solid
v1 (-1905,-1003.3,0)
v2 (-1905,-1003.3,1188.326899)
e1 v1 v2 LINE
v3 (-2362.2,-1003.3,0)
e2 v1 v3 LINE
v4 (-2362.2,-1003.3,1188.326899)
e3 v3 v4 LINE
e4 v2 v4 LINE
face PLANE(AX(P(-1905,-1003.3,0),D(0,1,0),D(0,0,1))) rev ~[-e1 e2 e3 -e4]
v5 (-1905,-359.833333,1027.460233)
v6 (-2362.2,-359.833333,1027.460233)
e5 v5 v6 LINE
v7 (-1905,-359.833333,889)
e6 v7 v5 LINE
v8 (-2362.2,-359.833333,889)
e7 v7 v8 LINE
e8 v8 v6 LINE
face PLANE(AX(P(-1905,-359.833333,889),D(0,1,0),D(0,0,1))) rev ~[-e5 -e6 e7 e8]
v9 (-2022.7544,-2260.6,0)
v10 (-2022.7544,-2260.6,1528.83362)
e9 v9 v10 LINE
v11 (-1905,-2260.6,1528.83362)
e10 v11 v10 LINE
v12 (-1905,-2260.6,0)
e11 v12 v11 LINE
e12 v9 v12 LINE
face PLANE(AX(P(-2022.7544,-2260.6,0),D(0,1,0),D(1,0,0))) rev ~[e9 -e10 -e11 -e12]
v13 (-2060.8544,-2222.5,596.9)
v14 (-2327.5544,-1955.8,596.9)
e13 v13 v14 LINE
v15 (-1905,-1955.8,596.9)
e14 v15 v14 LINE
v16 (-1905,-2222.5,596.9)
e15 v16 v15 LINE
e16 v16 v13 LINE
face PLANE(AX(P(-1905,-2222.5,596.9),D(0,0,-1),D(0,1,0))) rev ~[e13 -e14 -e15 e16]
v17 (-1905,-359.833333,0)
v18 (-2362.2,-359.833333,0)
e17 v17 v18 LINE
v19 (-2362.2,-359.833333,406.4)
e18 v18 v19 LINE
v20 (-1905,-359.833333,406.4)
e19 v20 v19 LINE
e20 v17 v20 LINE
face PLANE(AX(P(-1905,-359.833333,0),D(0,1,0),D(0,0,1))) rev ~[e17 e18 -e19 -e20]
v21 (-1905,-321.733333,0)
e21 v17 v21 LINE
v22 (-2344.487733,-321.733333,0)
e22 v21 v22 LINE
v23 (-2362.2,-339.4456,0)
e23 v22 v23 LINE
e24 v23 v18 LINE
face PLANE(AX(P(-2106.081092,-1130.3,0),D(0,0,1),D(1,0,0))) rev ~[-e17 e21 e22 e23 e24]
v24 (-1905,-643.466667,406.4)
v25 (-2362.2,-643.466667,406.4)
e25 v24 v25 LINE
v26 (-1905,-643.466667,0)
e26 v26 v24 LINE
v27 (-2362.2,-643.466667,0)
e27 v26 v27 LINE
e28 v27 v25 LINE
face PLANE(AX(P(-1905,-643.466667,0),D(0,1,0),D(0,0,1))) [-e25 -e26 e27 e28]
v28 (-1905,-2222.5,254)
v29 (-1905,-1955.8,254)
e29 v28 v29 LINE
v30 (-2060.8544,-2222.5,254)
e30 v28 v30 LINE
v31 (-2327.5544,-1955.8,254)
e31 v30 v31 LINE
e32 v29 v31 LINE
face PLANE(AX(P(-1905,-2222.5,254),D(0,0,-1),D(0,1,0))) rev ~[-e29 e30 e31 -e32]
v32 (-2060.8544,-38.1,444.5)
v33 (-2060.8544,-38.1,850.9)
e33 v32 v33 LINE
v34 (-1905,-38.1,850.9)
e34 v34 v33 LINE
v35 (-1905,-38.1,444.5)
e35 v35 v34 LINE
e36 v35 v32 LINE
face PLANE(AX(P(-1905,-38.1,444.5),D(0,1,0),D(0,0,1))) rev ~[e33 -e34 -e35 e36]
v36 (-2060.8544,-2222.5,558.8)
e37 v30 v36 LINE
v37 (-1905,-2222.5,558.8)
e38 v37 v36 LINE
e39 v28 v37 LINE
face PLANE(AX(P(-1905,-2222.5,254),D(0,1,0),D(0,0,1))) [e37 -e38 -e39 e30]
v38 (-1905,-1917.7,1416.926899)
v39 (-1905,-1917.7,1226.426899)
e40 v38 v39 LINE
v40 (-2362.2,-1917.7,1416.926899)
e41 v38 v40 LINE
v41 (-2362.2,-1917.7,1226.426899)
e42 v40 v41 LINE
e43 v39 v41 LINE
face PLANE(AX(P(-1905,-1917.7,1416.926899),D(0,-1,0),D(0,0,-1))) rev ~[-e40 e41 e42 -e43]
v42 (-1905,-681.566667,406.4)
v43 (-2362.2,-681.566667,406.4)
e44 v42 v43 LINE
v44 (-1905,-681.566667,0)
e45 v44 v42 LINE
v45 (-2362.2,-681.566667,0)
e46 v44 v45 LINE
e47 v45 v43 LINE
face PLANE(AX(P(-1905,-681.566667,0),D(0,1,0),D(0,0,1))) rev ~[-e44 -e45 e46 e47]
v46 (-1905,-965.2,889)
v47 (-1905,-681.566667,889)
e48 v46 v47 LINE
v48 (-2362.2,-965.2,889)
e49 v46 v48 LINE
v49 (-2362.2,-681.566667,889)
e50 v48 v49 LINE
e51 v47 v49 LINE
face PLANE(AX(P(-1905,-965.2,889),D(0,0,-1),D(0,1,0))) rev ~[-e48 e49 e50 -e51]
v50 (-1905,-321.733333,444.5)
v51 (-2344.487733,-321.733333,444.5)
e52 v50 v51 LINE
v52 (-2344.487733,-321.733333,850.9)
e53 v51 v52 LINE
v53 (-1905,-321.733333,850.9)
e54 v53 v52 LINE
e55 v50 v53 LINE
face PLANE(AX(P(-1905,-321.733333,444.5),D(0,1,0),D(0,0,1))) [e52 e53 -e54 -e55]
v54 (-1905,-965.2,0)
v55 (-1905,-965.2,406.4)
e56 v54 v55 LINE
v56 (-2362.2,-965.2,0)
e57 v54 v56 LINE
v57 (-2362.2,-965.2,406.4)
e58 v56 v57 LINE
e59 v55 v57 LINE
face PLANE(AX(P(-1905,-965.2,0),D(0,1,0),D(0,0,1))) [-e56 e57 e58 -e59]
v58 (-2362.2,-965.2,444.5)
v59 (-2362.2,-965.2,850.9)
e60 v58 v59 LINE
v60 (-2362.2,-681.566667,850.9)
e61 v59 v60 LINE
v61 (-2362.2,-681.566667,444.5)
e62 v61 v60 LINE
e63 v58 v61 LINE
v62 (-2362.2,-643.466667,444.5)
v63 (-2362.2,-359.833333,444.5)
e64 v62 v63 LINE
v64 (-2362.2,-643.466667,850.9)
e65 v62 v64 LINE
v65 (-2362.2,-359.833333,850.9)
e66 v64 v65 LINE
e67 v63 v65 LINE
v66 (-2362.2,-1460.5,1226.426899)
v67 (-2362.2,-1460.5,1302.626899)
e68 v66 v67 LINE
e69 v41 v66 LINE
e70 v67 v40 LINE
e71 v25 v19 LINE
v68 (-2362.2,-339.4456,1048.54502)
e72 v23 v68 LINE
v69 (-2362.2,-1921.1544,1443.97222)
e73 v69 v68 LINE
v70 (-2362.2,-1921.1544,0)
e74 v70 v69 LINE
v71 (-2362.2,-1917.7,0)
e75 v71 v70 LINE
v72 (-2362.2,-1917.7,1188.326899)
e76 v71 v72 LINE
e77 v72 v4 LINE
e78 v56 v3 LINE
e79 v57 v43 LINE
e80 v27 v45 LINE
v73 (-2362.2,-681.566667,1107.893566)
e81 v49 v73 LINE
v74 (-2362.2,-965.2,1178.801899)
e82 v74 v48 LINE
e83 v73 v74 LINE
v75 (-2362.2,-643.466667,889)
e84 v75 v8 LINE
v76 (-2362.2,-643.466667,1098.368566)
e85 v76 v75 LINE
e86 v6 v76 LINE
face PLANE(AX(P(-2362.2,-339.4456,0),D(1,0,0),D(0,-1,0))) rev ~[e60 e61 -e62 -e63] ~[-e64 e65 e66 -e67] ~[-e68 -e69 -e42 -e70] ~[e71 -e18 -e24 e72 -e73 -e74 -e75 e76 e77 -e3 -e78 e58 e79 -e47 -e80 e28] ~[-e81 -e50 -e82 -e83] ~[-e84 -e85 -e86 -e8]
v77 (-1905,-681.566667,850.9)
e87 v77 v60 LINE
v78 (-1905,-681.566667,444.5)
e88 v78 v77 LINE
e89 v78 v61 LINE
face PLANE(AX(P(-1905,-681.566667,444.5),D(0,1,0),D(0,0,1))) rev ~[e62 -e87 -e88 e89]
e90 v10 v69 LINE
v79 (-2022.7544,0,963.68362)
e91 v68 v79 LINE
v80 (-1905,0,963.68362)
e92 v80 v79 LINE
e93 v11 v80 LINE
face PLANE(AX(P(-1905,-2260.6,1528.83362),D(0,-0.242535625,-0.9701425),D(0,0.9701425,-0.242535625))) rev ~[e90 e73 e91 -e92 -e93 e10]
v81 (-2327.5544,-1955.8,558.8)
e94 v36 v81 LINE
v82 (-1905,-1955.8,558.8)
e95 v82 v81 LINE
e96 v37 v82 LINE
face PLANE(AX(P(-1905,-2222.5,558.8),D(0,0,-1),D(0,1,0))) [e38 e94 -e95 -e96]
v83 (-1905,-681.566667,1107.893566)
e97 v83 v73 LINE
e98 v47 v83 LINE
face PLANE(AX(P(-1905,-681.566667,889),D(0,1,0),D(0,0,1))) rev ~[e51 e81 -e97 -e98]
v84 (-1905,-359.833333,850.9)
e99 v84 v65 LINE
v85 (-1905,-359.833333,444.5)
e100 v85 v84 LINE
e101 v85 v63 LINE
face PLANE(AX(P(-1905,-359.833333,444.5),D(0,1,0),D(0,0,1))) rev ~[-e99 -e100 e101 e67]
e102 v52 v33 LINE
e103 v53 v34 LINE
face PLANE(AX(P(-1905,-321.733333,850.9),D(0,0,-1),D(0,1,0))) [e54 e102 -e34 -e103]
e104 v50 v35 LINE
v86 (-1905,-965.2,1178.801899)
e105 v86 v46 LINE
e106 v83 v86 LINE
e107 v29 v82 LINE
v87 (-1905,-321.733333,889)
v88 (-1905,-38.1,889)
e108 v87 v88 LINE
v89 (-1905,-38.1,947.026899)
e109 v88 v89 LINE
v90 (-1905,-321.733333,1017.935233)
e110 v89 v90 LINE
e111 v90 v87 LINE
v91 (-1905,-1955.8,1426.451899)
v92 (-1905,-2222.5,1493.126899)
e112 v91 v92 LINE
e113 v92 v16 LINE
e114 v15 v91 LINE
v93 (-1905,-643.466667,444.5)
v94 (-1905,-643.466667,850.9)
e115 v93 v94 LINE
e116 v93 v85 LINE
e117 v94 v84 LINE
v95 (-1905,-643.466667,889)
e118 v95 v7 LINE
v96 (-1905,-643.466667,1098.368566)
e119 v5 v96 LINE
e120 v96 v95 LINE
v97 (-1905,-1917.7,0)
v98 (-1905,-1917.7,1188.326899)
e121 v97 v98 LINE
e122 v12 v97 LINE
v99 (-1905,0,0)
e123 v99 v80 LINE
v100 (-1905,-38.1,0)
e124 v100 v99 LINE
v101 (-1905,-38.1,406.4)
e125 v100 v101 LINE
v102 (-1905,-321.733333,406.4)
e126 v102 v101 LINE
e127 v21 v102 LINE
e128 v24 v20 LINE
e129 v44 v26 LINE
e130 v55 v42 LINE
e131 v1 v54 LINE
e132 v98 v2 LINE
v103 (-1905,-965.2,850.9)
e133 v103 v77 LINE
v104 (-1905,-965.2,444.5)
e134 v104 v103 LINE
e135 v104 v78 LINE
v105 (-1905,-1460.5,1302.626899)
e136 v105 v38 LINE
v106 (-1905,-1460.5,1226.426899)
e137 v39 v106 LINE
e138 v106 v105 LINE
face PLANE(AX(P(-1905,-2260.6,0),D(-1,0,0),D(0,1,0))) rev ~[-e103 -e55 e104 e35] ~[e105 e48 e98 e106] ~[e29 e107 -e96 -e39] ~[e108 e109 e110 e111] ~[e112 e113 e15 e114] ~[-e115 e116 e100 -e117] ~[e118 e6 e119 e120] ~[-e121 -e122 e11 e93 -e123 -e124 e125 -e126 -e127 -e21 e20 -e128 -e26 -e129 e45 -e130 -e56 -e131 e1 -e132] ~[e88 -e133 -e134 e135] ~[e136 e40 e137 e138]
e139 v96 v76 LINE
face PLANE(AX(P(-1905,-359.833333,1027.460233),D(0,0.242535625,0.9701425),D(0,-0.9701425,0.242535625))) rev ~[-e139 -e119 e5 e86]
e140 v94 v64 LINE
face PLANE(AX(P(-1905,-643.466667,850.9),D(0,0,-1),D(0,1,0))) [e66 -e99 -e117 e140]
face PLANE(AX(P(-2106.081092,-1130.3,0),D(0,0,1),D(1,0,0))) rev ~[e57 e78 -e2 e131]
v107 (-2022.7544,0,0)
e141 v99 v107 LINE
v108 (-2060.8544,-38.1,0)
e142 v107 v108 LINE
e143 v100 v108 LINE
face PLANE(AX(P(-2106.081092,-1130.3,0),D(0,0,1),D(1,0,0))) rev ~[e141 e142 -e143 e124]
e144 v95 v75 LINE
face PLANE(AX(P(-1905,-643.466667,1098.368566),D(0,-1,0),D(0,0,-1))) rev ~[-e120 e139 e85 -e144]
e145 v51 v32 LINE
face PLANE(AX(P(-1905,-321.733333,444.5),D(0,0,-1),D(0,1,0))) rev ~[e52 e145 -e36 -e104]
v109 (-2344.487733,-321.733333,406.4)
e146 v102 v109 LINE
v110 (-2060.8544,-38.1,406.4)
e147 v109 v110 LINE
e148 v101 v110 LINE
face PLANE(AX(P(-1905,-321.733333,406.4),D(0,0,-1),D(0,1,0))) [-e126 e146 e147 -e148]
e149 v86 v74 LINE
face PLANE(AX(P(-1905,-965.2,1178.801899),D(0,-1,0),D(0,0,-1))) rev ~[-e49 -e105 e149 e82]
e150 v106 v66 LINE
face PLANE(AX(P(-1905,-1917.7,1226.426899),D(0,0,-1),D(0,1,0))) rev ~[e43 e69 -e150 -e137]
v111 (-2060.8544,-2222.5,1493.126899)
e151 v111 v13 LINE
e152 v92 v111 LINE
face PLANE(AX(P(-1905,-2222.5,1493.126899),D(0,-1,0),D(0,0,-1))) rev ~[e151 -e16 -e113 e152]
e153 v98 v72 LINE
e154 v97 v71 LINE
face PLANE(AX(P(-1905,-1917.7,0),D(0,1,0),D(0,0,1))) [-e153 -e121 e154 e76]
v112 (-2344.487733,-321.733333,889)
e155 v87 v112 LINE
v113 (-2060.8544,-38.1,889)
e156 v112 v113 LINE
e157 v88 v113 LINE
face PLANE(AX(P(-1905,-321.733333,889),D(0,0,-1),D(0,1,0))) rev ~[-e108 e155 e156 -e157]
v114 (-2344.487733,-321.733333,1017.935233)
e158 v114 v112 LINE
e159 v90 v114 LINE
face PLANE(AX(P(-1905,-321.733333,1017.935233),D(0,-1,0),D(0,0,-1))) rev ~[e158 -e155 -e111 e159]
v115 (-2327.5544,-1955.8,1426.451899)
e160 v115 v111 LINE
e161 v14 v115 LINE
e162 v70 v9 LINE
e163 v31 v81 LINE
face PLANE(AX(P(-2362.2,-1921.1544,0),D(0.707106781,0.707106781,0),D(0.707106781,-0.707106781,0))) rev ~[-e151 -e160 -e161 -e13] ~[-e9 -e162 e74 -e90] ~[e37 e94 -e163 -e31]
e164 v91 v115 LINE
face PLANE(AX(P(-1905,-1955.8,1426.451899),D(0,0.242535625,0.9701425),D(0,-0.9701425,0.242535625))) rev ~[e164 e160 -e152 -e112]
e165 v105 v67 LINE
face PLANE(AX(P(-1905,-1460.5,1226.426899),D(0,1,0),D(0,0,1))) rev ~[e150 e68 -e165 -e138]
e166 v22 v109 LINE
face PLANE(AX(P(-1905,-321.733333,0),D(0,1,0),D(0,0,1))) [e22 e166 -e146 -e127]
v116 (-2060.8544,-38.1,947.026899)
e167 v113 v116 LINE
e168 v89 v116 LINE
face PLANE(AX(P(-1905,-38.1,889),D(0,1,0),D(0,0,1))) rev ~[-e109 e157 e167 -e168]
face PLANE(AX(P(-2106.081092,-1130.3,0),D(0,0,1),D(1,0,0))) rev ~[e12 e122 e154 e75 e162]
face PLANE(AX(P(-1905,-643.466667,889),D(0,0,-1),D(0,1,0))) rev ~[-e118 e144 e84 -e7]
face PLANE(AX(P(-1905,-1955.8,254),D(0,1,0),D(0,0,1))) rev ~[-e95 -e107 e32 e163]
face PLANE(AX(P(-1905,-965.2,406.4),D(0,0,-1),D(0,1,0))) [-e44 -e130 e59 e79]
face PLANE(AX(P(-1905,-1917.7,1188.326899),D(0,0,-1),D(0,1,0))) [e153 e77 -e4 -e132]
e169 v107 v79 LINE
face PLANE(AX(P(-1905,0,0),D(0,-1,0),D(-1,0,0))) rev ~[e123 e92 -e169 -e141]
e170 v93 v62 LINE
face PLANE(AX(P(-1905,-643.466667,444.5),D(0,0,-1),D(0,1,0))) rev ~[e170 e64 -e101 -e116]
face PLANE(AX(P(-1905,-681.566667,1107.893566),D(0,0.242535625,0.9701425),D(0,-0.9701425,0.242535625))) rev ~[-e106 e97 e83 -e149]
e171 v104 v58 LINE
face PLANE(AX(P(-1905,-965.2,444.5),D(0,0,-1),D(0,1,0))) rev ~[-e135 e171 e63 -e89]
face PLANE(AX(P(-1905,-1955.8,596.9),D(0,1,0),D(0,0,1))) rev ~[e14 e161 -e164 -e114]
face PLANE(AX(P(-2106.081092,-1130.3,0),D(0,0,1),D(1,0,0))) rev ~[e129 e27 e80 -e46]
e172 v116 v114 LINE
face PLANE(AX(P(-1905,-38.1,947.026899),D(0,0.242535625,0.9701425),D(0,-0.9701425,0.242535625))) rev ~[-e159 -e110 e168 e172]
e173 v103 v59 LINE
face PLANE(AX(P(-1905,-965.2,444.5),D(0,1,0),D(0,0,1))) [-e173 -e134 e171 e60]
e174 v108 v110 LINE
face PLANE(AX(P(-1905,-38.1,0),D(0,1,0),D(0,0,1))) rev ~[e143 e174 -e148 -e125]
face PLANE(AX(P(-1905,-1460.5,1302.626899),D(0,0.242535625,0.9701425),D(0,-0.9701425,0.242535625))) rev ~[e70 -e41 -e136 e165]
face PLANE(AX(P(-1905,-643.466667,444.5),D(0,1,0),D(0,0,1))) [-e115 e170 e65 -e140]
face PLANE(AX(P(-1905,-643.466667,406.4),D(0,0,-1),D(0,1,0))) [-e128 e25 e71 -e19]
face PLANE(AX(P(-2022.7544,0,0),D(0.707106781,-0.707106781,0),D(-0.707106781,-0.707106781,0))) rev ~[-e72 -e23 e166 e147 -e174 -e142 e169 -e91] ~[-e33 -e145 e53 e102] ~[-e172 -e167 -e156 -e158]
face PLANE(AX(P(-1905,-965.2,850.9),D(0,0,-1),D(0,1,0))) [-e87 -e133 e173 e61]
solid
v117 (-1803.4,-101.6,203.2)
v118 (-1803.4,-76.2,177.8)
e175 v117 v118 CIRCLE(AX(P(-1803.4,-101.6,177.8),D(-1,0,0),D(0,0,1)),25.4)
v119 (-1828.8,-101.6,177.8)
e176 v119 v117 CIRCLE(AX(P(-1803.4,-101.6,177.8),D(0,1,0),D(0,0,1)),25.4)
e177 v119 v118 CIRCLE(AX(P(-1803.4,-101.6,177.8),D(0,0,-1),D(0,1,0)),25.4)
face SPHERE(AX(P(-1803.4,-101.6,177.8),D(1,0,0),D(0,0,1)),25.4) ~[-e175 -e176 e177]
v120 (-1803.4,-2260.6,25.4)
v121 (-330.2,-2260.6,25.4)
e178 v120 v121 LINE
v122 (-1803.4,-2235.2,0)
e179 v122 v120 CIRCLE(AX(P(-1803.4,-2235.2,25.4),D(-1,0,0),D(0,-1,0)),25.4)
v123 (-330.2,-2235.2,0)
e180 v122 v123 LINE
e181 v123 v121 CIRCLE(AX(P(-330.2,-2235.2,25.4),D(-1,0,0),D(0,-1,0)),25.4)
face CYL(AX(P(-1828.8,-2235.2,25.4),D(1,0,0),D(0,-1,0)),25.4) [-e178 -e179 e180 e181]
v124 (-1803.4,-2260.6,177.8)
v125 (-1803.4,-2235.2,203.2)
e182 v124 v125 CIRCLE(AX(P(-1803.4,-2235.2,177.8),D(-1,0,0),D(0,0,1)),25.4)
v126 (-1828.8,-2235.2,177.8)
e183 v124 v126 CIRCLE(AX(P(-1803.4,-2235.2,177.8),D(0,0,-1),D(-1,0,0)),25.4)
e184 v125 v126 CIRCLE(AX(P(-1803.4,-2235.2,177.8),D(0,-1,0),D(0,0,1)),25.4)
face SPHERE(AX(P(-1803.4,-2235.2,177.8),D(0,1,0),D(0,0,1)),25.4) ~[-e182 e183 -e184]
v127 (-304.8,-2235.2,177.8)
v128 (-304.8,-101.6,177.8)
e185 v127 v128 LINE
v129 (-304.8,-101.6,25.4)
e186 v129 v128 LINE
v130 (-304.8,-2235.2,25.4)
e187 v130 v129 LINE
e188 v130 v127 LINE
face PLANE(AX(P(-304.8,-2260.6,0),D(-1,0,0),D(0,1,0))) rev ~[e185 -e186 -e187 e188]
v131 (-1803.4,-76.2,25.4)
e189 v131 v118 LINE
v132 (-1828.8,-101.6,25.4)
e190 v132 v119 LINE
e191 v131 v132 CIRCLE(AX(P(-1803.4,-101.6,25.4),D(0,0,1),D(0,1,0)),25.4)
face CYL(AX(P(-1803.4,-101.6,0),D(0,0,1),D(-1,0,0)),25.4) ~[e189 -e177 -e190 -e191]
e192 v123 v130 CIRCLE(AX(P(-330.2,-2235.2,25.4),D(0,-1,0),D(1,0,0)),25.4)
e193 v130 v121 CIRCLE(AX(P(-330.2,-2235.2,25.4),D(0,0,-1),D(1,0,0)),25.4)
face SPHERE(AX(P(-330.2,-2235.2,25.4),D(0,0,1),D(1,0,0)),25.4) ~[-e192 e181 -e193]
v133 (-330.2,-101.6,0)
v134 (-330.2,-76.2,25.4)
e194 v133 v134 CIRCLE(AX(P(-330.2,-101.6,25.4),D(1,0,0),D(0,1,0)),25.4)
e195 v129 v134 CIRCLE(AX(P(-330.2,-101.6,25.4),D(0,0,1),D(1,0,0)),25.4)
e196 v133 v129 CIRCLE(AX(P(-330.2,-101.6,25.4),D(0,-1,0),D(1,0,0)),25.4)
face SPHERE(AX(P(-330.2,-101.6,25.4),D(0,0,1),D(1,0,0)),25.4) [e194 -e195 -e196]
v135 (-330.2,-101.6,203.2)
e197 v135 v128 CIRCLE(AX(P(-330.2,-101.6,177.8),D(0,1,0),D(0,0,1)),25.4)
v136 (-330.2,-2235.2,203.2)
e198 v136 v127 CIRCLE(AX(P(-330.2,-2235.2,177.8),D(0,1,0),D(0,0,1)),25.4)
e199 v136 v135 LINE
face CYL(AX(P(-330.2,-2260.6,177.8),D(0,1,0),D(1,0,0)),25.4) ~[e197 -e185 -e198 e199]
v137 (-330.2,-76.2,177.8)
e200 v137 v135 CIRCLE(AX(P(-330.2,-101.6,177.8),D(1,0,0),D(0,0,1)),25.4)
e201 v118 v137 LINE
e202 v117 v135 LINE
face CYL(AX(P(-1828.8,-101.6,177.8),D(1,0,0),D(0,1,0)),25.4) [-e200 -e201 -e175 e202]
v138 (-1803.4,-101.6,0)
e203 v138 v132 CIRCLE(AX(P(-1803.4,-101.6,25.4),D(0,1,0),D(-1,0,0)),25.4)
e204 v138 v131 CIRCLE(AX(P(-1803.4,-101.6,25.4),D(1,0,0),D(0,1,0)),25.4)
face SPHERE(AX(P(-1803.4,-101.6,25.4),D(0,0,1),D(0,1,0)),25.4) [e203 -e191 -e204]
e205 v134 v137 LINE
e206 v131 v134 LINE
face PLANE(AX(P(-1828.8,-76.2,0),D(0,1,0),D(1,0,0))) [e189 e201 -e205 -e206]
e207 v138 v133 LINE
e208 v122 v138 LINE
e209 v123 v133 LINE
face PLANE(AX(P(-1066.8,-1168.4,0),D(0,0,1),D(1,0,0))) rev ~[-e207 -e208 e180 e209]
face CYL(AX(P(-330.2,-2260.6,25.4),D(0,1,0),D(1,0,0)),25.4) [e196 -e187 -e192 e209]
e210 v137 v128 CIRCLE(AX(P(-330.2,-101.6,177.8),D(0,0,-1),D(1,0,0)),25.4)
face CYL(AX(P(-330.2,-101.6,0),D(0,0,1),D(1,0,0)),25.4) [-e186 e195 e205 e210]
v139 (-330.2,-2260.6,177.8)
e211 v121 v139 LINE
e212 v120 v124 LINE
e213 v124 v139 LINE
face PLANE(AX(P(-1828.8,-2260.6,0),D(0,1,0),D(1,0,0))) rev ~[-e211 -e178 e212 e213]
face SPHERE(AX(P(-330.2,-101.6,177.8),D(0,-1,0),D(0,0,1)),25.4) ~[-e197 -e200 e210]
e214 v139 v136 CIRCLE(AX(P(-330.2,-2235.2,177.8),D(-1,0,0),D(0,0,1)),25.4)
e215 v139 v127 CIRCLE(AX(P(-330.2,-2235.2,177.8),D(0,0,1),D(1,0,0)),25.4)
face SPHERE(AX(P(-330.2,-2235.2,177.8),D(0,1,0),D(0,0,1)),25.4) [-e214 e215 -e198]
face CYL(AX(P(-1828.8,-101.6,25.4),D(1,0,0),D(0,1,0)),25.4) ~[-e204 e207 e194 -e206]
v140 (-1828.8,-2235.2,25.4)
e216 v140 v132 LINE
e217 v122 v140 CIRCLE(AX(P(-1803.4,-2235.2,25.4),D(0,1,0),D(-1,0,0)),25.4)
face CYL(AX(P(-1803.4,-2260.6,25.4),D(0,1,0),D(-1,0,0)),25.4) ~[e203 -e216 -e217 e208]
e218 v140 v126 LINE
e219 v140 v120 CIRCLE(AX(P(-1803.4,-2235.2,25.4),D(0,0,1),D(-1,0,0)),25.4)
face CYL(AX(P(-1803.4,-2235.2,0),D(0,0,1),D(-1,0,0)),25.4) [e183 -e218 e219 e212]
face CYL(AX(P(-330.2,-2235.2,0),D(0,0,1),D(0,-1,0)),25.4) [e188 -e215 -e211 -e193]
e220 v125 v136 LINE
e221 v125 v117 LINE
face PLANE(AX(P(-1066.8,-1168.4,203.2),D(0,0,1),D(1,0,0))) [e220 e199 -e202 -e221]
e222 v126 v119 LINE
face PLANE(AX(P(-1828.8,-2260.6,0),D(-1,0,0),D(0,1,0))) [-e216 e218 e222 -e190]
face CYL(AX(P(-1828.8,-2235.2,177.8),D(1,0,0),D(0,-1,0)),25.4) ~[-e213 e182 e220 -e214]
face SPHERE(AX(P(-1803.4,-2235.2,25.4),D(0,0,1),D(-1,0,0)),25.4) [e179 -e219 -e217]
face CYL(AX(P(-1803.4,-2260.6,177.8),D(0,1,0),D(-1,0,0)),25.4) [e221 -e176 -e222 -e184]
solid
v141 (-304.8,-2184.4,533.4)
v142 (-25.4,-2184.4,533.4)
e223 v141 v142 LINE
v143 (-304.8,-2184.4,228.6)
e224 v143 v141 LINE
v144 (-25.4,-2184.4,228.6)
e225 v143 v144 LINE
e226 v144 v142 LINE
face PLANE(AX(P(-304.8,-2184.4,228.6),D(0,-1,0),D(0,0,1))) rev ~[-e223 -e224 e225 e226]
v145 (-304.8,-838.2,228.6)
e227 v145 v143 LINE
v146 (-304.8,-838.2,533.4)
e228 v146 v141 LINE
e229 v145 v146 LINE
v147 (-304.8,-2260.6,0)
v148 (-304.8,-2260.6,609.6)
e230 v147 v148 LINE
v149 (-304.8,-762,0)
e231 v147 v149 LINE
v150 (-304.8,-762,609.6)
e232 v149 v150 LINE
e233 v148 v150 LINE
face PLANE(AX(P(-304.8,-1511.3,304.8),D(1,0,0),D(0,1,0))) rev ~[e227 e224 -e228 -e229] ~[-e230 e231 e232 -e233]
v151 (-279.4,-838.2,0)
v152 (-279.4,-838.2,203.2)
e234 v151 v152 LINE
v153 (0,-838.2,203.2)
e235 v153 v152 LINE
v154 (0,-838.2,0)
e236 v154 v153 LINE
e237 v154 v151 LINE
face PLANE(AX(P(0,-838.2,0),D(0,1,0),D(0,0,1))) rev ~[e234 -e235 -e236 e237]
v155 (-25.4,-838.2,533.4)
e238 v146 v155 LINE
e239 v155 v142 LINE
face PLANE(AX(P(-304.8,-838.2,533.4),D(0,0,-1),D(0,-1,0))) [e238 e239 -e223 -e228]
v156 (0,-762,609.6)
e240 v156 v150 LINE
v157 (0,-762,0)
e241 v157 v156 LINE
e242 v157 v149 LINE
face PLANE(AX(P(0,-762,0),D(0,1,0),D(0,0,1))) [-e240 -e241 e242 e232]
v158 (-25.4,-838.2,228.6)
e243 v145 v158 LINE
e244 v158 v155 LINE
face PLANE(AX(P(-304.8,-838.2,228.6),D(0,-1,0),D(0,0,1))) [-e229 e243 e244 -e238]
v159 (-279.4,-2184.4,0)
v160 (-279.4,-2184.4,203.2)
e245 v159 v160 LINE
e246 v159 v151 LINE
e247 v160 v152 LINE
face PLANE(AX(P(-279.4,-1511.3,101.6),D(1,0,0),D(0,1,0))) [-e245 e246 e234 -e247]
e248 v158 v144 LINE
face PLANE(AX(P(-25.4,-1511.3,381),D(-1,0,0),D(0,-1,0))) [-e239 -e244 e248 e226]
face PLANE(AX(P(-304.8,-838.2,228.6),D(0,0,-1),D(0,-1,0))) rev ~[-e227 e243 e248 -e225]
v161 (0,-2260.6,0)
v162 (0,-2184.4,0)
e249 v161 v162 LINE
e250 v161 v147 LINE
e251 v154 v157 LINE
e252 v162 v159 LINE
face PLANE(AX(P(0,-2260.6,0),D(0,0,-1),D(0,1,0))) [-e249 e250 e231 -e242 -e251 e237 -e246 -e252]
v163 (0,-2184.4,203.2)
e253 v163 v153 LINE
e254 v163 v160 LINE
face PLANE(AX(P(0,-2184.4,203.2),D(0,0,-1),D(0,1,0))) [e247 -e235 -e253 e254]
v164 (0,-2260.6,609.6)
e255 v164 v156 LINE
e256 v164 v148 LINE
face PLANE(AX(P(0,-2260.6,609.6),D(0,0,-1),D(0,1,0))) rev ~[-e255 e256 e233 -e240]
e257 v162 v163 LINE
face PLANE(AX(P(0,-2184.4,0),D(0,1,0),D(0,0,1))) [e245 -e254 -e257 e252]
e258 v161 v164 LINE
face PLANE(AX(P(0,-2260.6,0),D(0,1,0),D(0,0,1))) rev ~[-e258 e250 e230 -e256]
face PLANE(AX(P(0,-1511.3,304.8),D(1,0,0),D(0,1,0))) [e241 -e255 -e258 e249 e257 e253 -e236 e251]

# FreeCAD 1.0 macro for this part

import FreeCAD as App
import Part
import Sketcher
Q = App.Units.Quantity

doc = App.newDocument("Part")
body = doc.addObject("PartDesign::Body", "Body")

# Sketch on YZ plane
sketch1 = doc.addObject("Sketcher::SketchObject", "Sketch")
body.addObject(sketch1)
sketch1.AttachmentSupport = (doc.YZ_Plane, [""])
sketch1.MapMode = "FlatFace"
sketch1.addGeometry(Part.LineSegment(App.Vector(-2260.6, 609.6, 0), App.Vector(-2260.6, 0, 0)), False)
sketch1.addGeometry(Part.LineSegment(App.Vector(-2260.6, 0, 0), App.Vector(-762, 0, 0)), False)
sketch1.addGeometry(Part.LineSegment(App.Vector(-762, 0, 0), App.Vector(-762, 609.6, 0)), False)
sketch1.addGeometry(Part.LineSegment(App.Vector(-762, 609.6, 0), App.Vector(-2260.6, 609.6, 0)), False)
sketch1.addConstraint(Sketcher.Constraint("Coincident", 0, 2, 1, 1))
sketch1.addConstraint(Sketcher.Constraint("Coincident", 1, 2, 2, 1))
sketch1.addConstraint(Sketcher.Constraint("Coincident", 2, 2, 3, 1))
sketch1.addConstraint(Sketcher.Constraint("Coincident", 3, 2, 0, 1))
sketch1.addConstraint(Sketcher.Constraint("Vertical", 0))
sketch1.addConstraint(Sketcher.Constraint("Horizontal", 1))
sketch1.addConstraint(Sketcher.Constraint("Vertical", 2))
sketch1.addConstraint(Sketcher.Constraint("Horizontal", 3))
sketch1.addConstraint(Sketcher.Constraint("PointOnObject", 0, 2, -1))
sketch1.addConstraint(Sketcher.Constraint("DistanceX", 1, 1, 1, 2, Q("59 in")))
sketch1.addConstraint(Sketcher.Constraint("DistanceY", 0, 2, 0, 1, Q("24 in")))
sketch1.addConstraint(Sketcher.Constraint("DistanceX", 0, 2, -1, 1, Q("89 in")))
pad1 = doc.addObject("PartDesign::Pad", "Pad")
body.addObject(pad1)
pad1.Profile = sketch1
pad1.Length = Q("12 in")
pad1.Reversed = True

# Sketch on YZ plane
sketch2 = doc.addObject("Sketcher::SketchObject", "Sketch001")
body.addObject(sketch2)
sketch2.AttachmentSupport = (doc.YZ_Plane, [""])
sketch2.MapMode = "FlatFace"
sketch2.AttachmentOffset = App.Placement(App.Vector(0, 0, -12 * 25.4), App.Rotation())
sketch2.addGeometry(Part.LineSegment(App.Vector(-838.2, 533.4, 0), App.Vector(-838.2, 228.6, 0)), False)
sketch2.addGeometry(Part.LineSegment(App.Vector(-838.2, 228.6, 0), App.Vector(-2184.4, 228.6, 0)), False)
sketch2.addGeometry(Part.LineSegment(App.Vector(-2184.4, 228.6, 0), App.Vector(-2184.4, 533.4, 0)), False)
sketch2.addGeometry(Part.LineSegment(App.Vector(-2184.4, 533.4, 0), App.Vector(-838.2, 533.4, 0)), False)
sketch2.addConstraint(Sketcher.Constraint("Coincident", 0, 2, 1, 1))
sketch2.addConstraint(Sketcher.Constraint("Coincident", 1, 2, 2, 1))
sketch2.addConstraint(Sketcher.Constraint("Coincident", 2, 2, 3, 1))
sketch2.addConstraint(Sketcher.Constraint("Coincident", 3, 2, 0, 1))
sketch2.addConstraint(Sketcher.Constraint("Vertical", 0))
sketch2.addConstraint(Sketcher.Constraint("Horizontal", 1))
sketch2.addConstraint(Sketcher.Constraint("Vertical", 2))
sketch2.addConstraint(Sketcher.Constraint("Horizontal", 3))
sketch2.addConstraint(Sketcher.Constraint("DistanceX", 1, 2, 1, 1, Q("53 in")))
sketch2.addConstraint(Sketcher.Constraint("DistanceY", 0, 2, 0, 1, Q("12 in")))
sketch2.addConstraint(Sketcher.Constraint("DistanceX", 0, 2, -1, 1, Q("33 in")))
sketch2.addConstraint(Sketcher.Constraint("DistanceY", -1, 1, 0, 2, Q("9 in")))
pocket1 = doc.addObject("PartDesign::Pocket", "Pocket")
body.addObject(pocket1)
pocket1.Profile = sketch2
pocket1.Length = Q("11 in")
pocket1.Reversed = True

# Sketch on YZ plane
sketch3 = doc.addObject("Sketcher::SketchObject", "Sketch002")
body.addObject(sketch3)
sketch3.AttachmentSupport = (doc.YZ_Plane, [""])
sketch3.MapMode = "FlatFace"
sketch3.addGeometry(Part.LineSegment(App.Vector(-2184.4, 203.2, 0), App.Vector(-2184.4, 0, 0)), False)
sketch3.addGeometry(Part.LineSegment(App.Vector(-2184.4, 0, 0), App.Vector(-838.2, 0, 0)), False)
sketch3.addGeometry(Part.LineSegment(App.Vector(-838.2, 0, 0), App.Vector(-838.2, 203.2, 0)), False)
sketch3.addGeometry(Part.LineSegment(App.Vector(-838.2, 203.2, 0), App.Vector(-2184.4, 203.2, 0)), False)
sketch3.addConstraint(Sketcher.Constraint("Coincident", 0, 2, 1, 1))
sketch3.addConstraint(Sketcher.Constraint("Coincident", 1, 2, 2, 1))
sketch3.addConstraint(Sketcher.Constraint("Coincident", 2, 2, 3, 1))
sketch3.addConstraint(Sketcher.Constraint("Coincident", 3, 2, 0, 1))
sketch3.addConstraint(Sketcher.Constraint("Vertical", 0))
sketch3.addConstraint(Sketcher.Constraint("Horizontal", 1))
sketch3.addConstraint(Sketcher.Constraint("Vertical", 2))
sketch3.addConstraint(Sketcher.Constraint("Horizontal", 3))
sketch3.addConstraint(Sketcher.Constraint("PointOnObject", 0, 2, -1))
sketch3.addConstraint(Sketcher.Constraint("DistanceX", 1, 1, 1, 2, Q("53 in")))
sketch3.addConstraint(Sketcher.Constraint("DistanceY", 0, 2, 0, 1, Q("8 in")))
sketch3.addConstraint(Sketcher.Constraint("DistanceX", 0, 2, -1, 1, Q("86 in")))
pocket2 = doc.addObject("PartDesign::Pocket", "Pocket001")
body.addObject(pocket2)
pocket2.Profile = sketch3
pocket2.Length = Q("11 in")
body2 = doc.addObject("PartDesign::Body", "Body001")

# Sketch on XY plane
sketch4 = doc.addObject("Sketcher::SketchObject", "Sketch003")
body2.addObject(sketch4)
sketch4.AttachmentSupport = (doc.getObject("XY_Plane001"), [""])
sketch4.MapMode = "FlatFace"
sketch4.addGeometry(Part.LineSegment(App.Vector(-1828.8, -76.2, 0), App.Vector(-1828.8, -2260.6, 0)), False)
sketch4.addGeometry(Part.LineSegment(App.Vector(-1828.8, -2260.6, 0), App.Vector(-304.8, -2260.6, 0)), False)
sketch4.addGeometry(Part.LineSegment(App.Vector(-304.8, -2260.6, 0), App.Vector(-304.8, -76.2, 0)), False)
sketch4.addGeometry(Part.LineSegment(App.Vector(-304.8, -76.2, 0), App.Vector(-1828.8, -76.2, 0)), False)
sketch4.addConstraint(Sketcher.Constraint("Coincident", 0, 2, 1, 1))
sketch4.addConstraint(Sketcher.Constraint("Coincident", 1, 2, 2, 1))
sketch4.addConstraint(Sketcher.Constraint("Coincident", 2, 2, 3, 1))
sketch4.addConstraint(Sketcher.Constraint("Coincident", 3, 2, 0, 1))
sketch4.addConstraint(Sketcher.Constraint("Vertical", 0))
sketch4.addConstraint(Sketcher.Constraint("Horizontal", 1))
sketch4.addConstraint(Sketcher.Constraint("Vertical", 2))
sketch4.addConstraint(Sketcher.Constraint("Horizontal", 3))
sketch4.addConstraint(Sketcher.Constraint("DistanceX", 1, 1, 1, 2, Q("60 in")))
sketch4.addConstraint(Sketcher.Constraint("DistanceY", 0, 2, 0, 1, Q("86 in")))
sketch4.addConstraint(Sketcher.Constraint("DistanceX", 0, 2, -1, 1, Q("72 in")))
sketch4.addConstraint(Sketcher.Constraint("DistanceY", 0, 2, -1, 1, Q("89 in")))
pad2 = doc.addObject("PartDesign::Pad", "Pad001")
body2.addObject(pad2)
pad2.Profile = sketch4
pad2.Length = Q("8 in")
doc.recompute()

fillet = doc.addObject("PartDesign::Fillet", "Fillet")
body2.addObject(fillet)
fillet.Base = (pad2, ["Edge1"])
fillet.UseAllEdges = True
fillet.Radius = Q("1 in")
body3 = doc.addObject("PartDesign::Body", "Body002")

# Sketch on XY plane
sketch5 = doc.addObject("Sketcher::SketchObject", "Sketch004")
body3.addObject(sketch5)
sketch5.AttachmentSupport = (doc.getObject("XY_Plane002"), [""])
sketch5.MapMode = "FlatFace"
sketch5.addGeometry(Part.LineSegment(App.Vector(-1905, -2260.6, 0), App.Vector(-1905, 0, 0)), False)
sketch5.addGeometry(Part.LineSegment(App.Vector(-1905, 0, 0), App.Vector(-2022.7544, 0, 0)), False)
sketch5.addGeometry(Part.LineSegment(App.Vector(-2022.7544, 0, 0), App.Vector(-2362.2, -339.4456, 0)), False)
sketch5.addGeometry(Part.LineSegment(App.Vector(-2362.2, -339.4456, 0), App.Vector(-2362.2, -1921.1544, 0)), False)
sketch5.addGeometry(Part.LineSegment(App.Vector(-2362.2, -1921.1544, 0), App.Vector(-2022.7544, -2260.6, 0)), False)
sketch5.addGeometry(Part.LineSegment(App.Vector(-2022.7544, -2260.6, 0), App.Vector(-1905, -2260.6, 0)), False)
sketch5.addConstraint(Sketcher.Constraint("Coincident", 0, 2, 1, 1))
sketch5.addConstraint(Sketcher.Constraint("Coincident", 1, 2, 2, 1))
sketch5.addConstraint(Sketcher.Constraint("Coincident", 2, 2, 3, 1))
sketch5.addConstraint(Sketcher.Constraint("Coincident", 3, 2, 4, 1))
sketch5.addConstraint(Sketcher.Constraint("Coincident", 4, 2, 5, 1))
sketch5.addConstraint(Sketcher.Constraint("Coincident", 5, 2, 0, 1))
sketch5.addConstraint(Sketcher.Constraint("Vertical", 0))
sketch5.addConstraint(Sketcher.Constraint("Horizontal", 1))
sketch5.addConstraint(Sketcher.Constraint("Vertical", 3))
sketch5.addConstraint(Sketcher.Constraint("Horizontal", 5))
sketch5.addConstraint(Sketcher.Constraint("PointOnObject", 0, 2, -1))
sketch5.addConstraint(Sketcher.Constraint("Perpendicular", 2, 4))
sketch5.addConstraint(Sketcher.Constraint("Vertical", 1, 2, 4, 2))
sketch5.addConstraint(Sketcher.Constraint("Equal", 2, 4))
sketch5.addConstraint(Sketcher.Constraint("DistanceY", 0, 1, 0, 2, Q("89 in")))
sketch5.addConstraint(Sketcher.Constraint("DistanceX", 0, 2, -1, 1, Q("75 in")))
sketch5.addConstraint(Sketcher.Constraint("DistanceX", 2, 2, -1, 1, Q("93 in")))
sketch5.addConstraint(Sketcher.Constraint("DistanceX", 1, 2, 1, 1, Q("4.636 in")))
pad3 = doc.addObject("PartDesign::Pad", "Pad002")
body3.addObject(pad3)
pad3.Profile = sketch5
pad3.Length = Q("62 in")

# Sketch on YZ plane
sketch6 = doc.addObject("Sketcher::SketchObject", "Sketch005")
body3.addObject(sketch6)
sketch6.AttachmentSupport = (doc.getObject("YZ_Plane002"), [""])
sketch6.MapMode = "FlatFace"
sketch6.AttachmentOffset = App.Placement(App.Vector(0, 0, -75 * 25.4), App.Rotation())
sketch6.addGeometry(Part.LineSegment(App.Vector(-2260.6, 1574.8, 0), App.Vector(-2260.6, 1528.83362, 0)), False)
sketch6.addGeometry(Part.LineSegment(App.Vector(-2260.6, 1528.83362, 0), App.Vector(0, 963.68362, 0)), False)
sketch6.addGeometry(Part.LineSegment(App.Vector(0, 963.68362, 0), App.Vector(0, 1574.8, 0)), False)
sketch6.addGeometry(Part.LineSegment(App.Vector(0, 1574.8, 0), App.Vector(-2260.6, 1574.8, 0)), False)
sketch6.addConstraint(Sketcher.Constraint("Coincident", 0, 2, 1, 1))
sketch6.addConstraint(Sketcher.Constraint("Coincident", 1, 2, 2, 1))
sketch6.addConstraint(Sketcher.Constraint("Coincident", 2, 2, 3, 1))
sketch6.addConstraint(Sketcher.Constraint("Coincident", 3, 2, 0, 1))
sketch6.addConstraint(Sketcher.Constraint("Vertical", 0))
sketch6.addConstraint(Sketcher.Constraint("Vertical", 2))
sketch6.addConstraint(Sketcher.Constraint("Horizontal", 3))
sketch6.addConstraint(Sketcher.Constraint("PointOnObject", 1, 2, -2))
sketch6.addConstraint(Sketcher.Constraint("DistanceX", 3, 2, 3, 1, Q("89 in")))
sketch6.addConstraint(Sketcher.Constraint("DistanceY", -1, 1, 2, 2, Q("62 in")))
sketch6.addConstraint(Sketcher.Constraint("DistanceY", 1, 2, 0, 2, Q("22.25 in")))
sketch6.addConstraint(Sketcher.Constraint("DistanceY", 0, 2, 0, 1, Q("1.8097 in")))
pocket3 = doc.addObject("PartDesign::Pocket", "Pocket002")
body3.addObject(pocket3)
pocket3.Profile = sketch6
pocket3.Type = "ThroughAll"

# Sketch on YZ plane
sketch7 = doc.addObject("Sketcher::SketchObject", "Sketch006")
body3.addObject(sketch7)
sketch7.AttachmentSupport = (doc.getObject("YZ_Plane002"), [""])
sketch7.MapMode = "FlatFace"
sketch7.AttachmentOffset = App.Placement(App.Vector(0, 0, -75 * 25.4), App.Rotation())
sketch7.addGeometry(Part.LineSegment(App.Vector(-2222.5, 558.8, 0), App.Vector(-2222.5, 254, 0)), False)
sketch7.addGeometry(Part.LineSegment(App.Vector(-2222.5, 254, 0), App.Vector(-1955.8, 254, 0)), False)
sketch7.addGeometry(Part.LineSegment(App.Vector(-1955.8, 254, 0), App.Vector(-1955.8, 558.8, 0)), False)
sketch7.addGeometry(Part.LineSegment(App.Vector(-1955.8, 558.8, 0), App.Vector(-2222.5, 558.8, 0)), False)
sketch7.addGeometry(Part.LineSegment(App.Vector(-2222.5, 1493.126899, 0), App.Vector(-2222.5, 596.9, 0)), False)
sketch7.addGeometry(Part.LineSegment(App.Vector(-2222.5, 596.9, 0), App.Vector(-1955.8, 596.9, 0)), False)
sketch7.addGeometry(Part.LineSegment(App.Vector(-1955.8, 596.9, 0), App.Vector(-1955.8, 1426.451899, 0)), False)
sketch7.addGeometry(Part.LineSegment(App.Vector(-1955.8, 1426.451899, 0), App.Vector(-2222.5, 1493.126899, 0)), False)
sketch7.addGeometry(Part.LineSegment(App.Vector(-38.1, 947.026899, 0), App.Vector(-321.733333, 1017.935233, 0)), False)
sketch7.addGeometry(Part.LineSegment(App.Vector(-321.733333, 1017.935233, 0), App.Vector(-321.733333, 889, 0)), False)
sketch7.addGeometry(Part.LineSegment(App.Vector(-321.733333, 889, 0), App.Vector(-38.1, 889, 0)), False)
sketch7.addGeometry(Part.LineSegment(App.Vector(-38.1, 889, 0), App.Vector(-38.1, 947.026899, 0)), False)
sketch7.addGeometry(Part.LineSegment(App.Vector(-321.733333, 850.9, 0), App.Vector(-321.733333, 444.5, 0)), False)
sketch7.addGeometry(Part.LineSegment(App.Vector(-321.733333, 444.5, 0), App.Vector(-38.1, 444.5, 0)), False)
sketch7.addGeometry(Part.LineSegment(App.Vector(-38.1, 444.5, 0), App.Vector(-38.1, 850.9, 0)), False)
sketch7.addGeometry(Part.LineSegment(App.Vector(-38.1, 850.9, 0), App.Vector(-321.733333, 850.9, 0)), False)
sketch7.addGeometry(Part.LineSegment(App.Vector(-321.733333, 406.4, 0), App.Vector(-321.733333, 0, 0)), False)
sketch7.addGeometry(Part.LineSegment(App.Vector(-321.733333, 0, 0), App.Vector(-38.1, 0, 0)), False)
sketch7.addGeometry(Part.LineSegment(App.Vector(-38.1, 0, 0), App.Vector(-38.1, 406.4, 0)), False)
sketch7.addGeometry(Part.LineSegment(App.Vector(-38.1, 406.4, 0), App.Vector(-321.733333, 406.4, 0)), False)
sketch7.addGeometry(Part.LineSegment(App.Vector(-1917.7, 1188.326899, 0), App.Vector(-1917.7, 0, 0)), False)
sketch7.addGeometry(Part.LineSegment(App.Vector(-1917.7, 0, 0), App.Vector(-1003.3, 0, 0)), False)
sketch7.addGeometry(Part.LineSegment(App.Vector(-1003.3, 0, 0), App.Vector(-1003.3, 1188.326899, 0)), False)
sketch7.addGeometry(Part.LineSegment(App.Vector(-1003.3, 1188.326899, 0), App.Vector(-1917.7, 1188.326899, 0)), False)
sketch7.addGeometry(Part.LineSegment(App.Vector(-643.466667, 406.4, 0), App.Vector(-643.466667, 0, 0)), False)
sketch7.addGeometry(Part.LineSegment(App.Vector(-643.466667, 0, 0), App.Vector(-359.833333, 0, 0)), False)
sketch7.addGeometry(Part.LineSegment(App.Vector(-359.833333, 0, 0), App.Vector(-359.833333, 406.4, 0)), False)
sketch7.addGeometry(Part.LineSegment(App.Vector(-359.833333, 406.4, 0), App.Vector(-643.466667, 406.4, 0)), False)
sketch7.addGeometry(Part.LineSegment(App.Vector(-965.2, 406.4, 0), App.Vector(-965.2, 0, 0)), False)
sketch7.addGeometry(Part.LineSegment(App.Vector(-965.2, 0, 0), App.Vector(-681.566667, 0, 0)), False)
sketch7.addGeometry(Part.LineSegment(App.Vector(-681.566667, 0, 0), App.Vector(-681.566667, 406.4, 0)), False)
sketch7.addGeometry(Part.LineSegment(App.Vector(-681.566667, 406.4, 0), App.Vector(-965.2, 406.4, 0)), False)
sketch7.addGeometry(Part.LineSegment(App.Vector(-643.466667, 850.9, 0), App.Vector(-643.466667, 444.5, 0)), False)
sketch7.addGeometry(Part.LineSegment(App.Vector(-643.466667, 444.5, 0), App.Vector(-359.833333, 444.5, 0)), False)
sketch7.addGeometry(Part.LineSegment(App.Vector(-359.833333, 444.5, 0), App.Vector(-359.833333, 850.9, 0)), False)
sketch7.addGeometry(Part.LineSegment(App.Vector(-359.833333, 850.9, 0), App.Vector(-643.466667, 850.9, 0)), False)
sketch7.addGeometry(Part.LineSegment(App.Vector(-965.2, 850.9, 0), App.Vector(-965.2, 444.5, 0)), False)
sketch7.addGeometry(Part.LineSegment(App.Vector(-965.2, 444.5, 0), App.Vector(-681.566667, 444.5, 0)), False)
sketch7.addGeometry(Part.LineSegment(App.Vector(-681.566667, 444.5, 0), App.Vector(-681.566667, 850.9, 0)), False)
sketch7.addGeometry(Part.LineSegment(App.Vector(-681.566667, 850.9, 0), App.Vector(-965.2, 850.9, 0)), False)
sketch7.addGeometry(Part.LineSegment(App.Vector(-643.466667, 889, 0), App.Vector(-359.833333, 889, 0)), False)
sketch7.addGeometry(Part.LineSegment(App.Vector(-359.833333, 889, 0), App.Vector(-359.833333, 1027.460233, 0)), False)
sketch7.addGeometry(Part.LineSegment(App.Vector(-359.833333, 1027.460233, 0), App.Vector(-643.466667, 1098.368566, 0)), False)
sketch7.addGeometry(Part.LineSegment(App.Vector(-643.466667, 1098.368566, 0), App.Vector(-643.466667, 889, 0)), False)
sketch7.addGeometry(Part.LineSegment(App.Vector(-965.2, 889, 0), App.Vector(-681.566667, 889, 0)), False)
sketch7.addGeometry(Part.LineSegment(App.Vector(-681.566667, 889, 0), App.Vector(-681.566667, 1107.893566, 0)), False)
sketch7.addGeometry(Part.LineSegment(App.Vector(-681.566667, 1107.893566, 0), App.Vector(-965.2, 1178.801899, 0)), False)
sketch7.addGeometry(Part.LineSegment(App.Vector(-965.2, 1178.801899, 0), App.Vector(-965.2, 889, 0)), False)
sketch7.addGeometry(Part.LineSegment(App.Vector(-1917.7, 1416.926899, 0), App.Vector(-1917.7, 1226.426899, 0)), False)
sketch7.addGeometry(Part.LineSegment(App.Vector(-1917.7, 1226.426899, 0), App.Vector(-1460.5, 1226.426899, 0)), False)
sketch7.addGeometry(Part.LineSegment(App.Vector(-1460.5, 1226.426899, 0), App.Vector(-1460.5, 1302.626899, 0)), False)
sketch7.addGeometry(Part.LineSegment(App.Vector(-1460.5, 1302.626899, 0), App.Vector(-1917.7, 1416.926899, 0)), False)
sketch7.addConstraint(Sketcher.Constraint("Coincident", 0, 2, 1, 1))
sketch7.addConstraint(Sketcher.Constraint("Coincident", 1, 2, 2, 1))
sketch7.addConstraint(Sketcher.Constraint("Coincident", 2, 2, 3, 1))
sketch7.addConstraint(Sketcher.Constraint("Coincident", 3, 2, 0, 1))
sketch7.addConstraint(Sketcher.Constraint("Coincident", 4, 2, 5, 1))
sketch7.addConstraint(Sketcher.Constraint("Coincident", 5, 2, 6, 1))
sketch7.addConstraint(Sketcher.Constraint("Coincident", 6, 2, 7, 1))
sketch7.addConstraint(Sketcher.Constraint("Coincident", 7, 2, 4, 1))
sketch7.addConstraint(Sketcher.Constraint("Coincident", 8, 2, 9, 1))
sketch7.addConstraint(Sketcher.Constraint("Coincident", 9, 2, 10, 1))
sketch7.addConstraint(Sketcher.Constraint("Coincident", 10, 2, 11, 1))
sketch7.addConstraint(Sketcher.Constraint("Coincident", 11, 2, 8, 1))
sketch7.addConstraint(Sketcher.Constraint("Coincident", 12, 2, 13, 1))
sketch7.addConstraint(Sketcher.Constraint("Coincident", 13, 2, 14, 1))
sketch7.addConstraint(Sketcher.Constraint("Coincident", 14, 2, 15, 1))
sketch7.addConstraint(Sketcher.Constraint("Coincident", 15, 2, 12, 1))
sketch7.addConstraint(Sketcher.Constraint("Coincident", 16, 2, 17, 1))
sketch7.addConstraint(Sketcher.Constraint("Coincident", 17, 2, 18, 1))
sketch7.addConstraint(Sketcher.Constraint("Coincident", 18, 2, 19, 1))
sketch7.addConstraint(Sketcher.Constraint("Coincident", 19, 2, 16, 1))
sketch7.addConstraint(Sketcher.Constraint("Coincident", 20, 2, 21, 1))
sketch7.addConstraint(Sketcher.Constraint("Coincident", 21, 2, 22, 1))
sketch7.addConstraint(Sketcher.Constraint("Coincident", 22, 2, 23, 1))
sketch7.addConstraint(Sketcher.Constraint("Coincident", 23, 2, 20, 1))
sketch7.addConstraint(Sketcher.Constraint("Coincident", 24, 2, 25, 1))
sketch7.addConstraint(Sketcher.Constraint("Coincident", 25, 2, 26, 1))
sketch7.addConstraint(Sketcher.Constraint("Coincident", 26, 2, 27, 1))
sketch7.addConstraint(Sketcher.Constraint("Coincident", 27, 2, 24, 1))
sketch7.addConstraint(Sketcher.Constraint("Coincident", 28, 2, 29, 1))
sketch7.addConstraint(Sketcher.Constraint("Coincident", 29, 2, 30, 1))
sketch7.addConstraint(Sketcher.Constraint("Coincident", 30, 2, 31, 1))
sketch7.addConstraint(Sketcher.Constraint("Coincident", 31, 2, 28, 1))
sketch7.addConstraint(Sketcher.Constraint("Coincident", 32, 2, 33, 1))
sketch7.addConstraint(Sketcher.Constraint("Coincident", 33, 2, 34, 1))
sketch7.addConstraint(Sketcher.Constraint("Coincident", 34, 2, 35, 1))
sketch7.addConstraint(Sketcher.Constraint("Coincident", 35, 2, 32, 1))
sketch7.addConstraint(Sketcher.Constraint("Coincident", 36, 2, 37, 1))
sketch7.addConstraint(Sketcher.Constraint("Coincident", 37, 2, 38, 1))
sketch7.addConstraint(Sketcher.Constraint("Coincident", 38, 2, 39, 1))
sketch7.addConstraint(Sketcher.Constraint("Coincident", 39, 2, 36, 1))
sketch7.addConstraint(Sketcher.Constraint("Coincident", 40, 2, 41, 1))
sketch7.addConstraint(Sketcher.Constraint("Coincident", 41, 2, 42, 1))
sketch7.addConstraint(Sketcher.Constraint("Coincident", 42, 2, 43, 1))
sketch7.addConstraint(Sketcher.Constraint("Coincident", 43, 2, 40, 1))
sketch7.addConstraint(Sketcher.Constraint("Coincident", 44, 2, 45, 1))
sketch7.addConstraint(Sketcher.Constraint("Coincident", 45, 2, 46, 1))
sketch7.addConstraint(Sketcher.Constraint("Coincident", 46, 2, 47, 1))
sketch7.addConstraint(Sketcher.Constraint("Coincident", 47, 2, 44, 1))
sketch7.addConstraint(Sketcher.Constraint("Coincident", 48, 2, 49, 1))
sketch7.addConstraint(Sketcher.Constraint("Coincident", 49, 2, 50, 1))
sketch7.addConstraint(Sketcher.Constraint("Coincident", 50, 2, 51, 1))
sketch7.addConstraint(Sketcher.Constraint("Coincident", 51, 2, 48, 1))
sketch7.addConstraint(Sketcher.Constraint("Vertical", 0))
sketch7.addConstraint(Sketcher.Constraint("Horizontal", 1))
sketch7.addConstraint(Sketcher.Constraint("Vertical", 2))
sketch7.addConstraint(Sketcher.Constraint("Horizontal", 3))
sketch7.addConstraint(Sketcher.Constraint("Vertical", 4))
sketch7.addConstraint(Sketcher.Constraint("Horizontal", 5))
sketch7.addConstraint(Sketcher.Constraint("Vertical", 6))
sketch7.addConstraint(Sketcher.Constraint("Vertical", 9))
sketch7.addConstraint(Sketcher.Constraint("Horizontal", 10))
sketch7.addConstraint(Sketcher.Constraint("Vertical", 11))
sketch7.addConstraint(Sketcher.Constraint("Vertical", 12))
sketch7.addConstraint(Sketcher.Constraint("Horizontal", 13))
sketch7.addConstraint(Sketcher.Constraint("Vertical", 14))
sketch7.addConstraint(Sketcher.Constraint("Horizontal", 15))
sketch7.addConstraint(Sketcher.Constraint("Vertical", 16))
sketch7.addConstraint(Sketcher.Constraint("Horizontal", 17))
sketch7.addConstraint(Sketcher.Constraint("Vertical", 18))
sketch7.addConstraint(Sketcher.Constraint("Horizontal", 19))
sketch7.addConstraint(Sketcher.Constraint("Vertical", 20))
sketch7.addConstraint(Sketcher.Constraint("Horizontal", 21))
sketch7.addConstraint(Sketcher.Constraint("Vertical", 22))
sketch7.addConstraint(Sketcher.Constraint("Horizontal", 23))
sketch7.addConstraint(Sketcher.Constraint("Vertical", 24))
sketch7.addConstraint(Sketcher.Constraint("Horizontal", 25))
sketch7.addConstraint(Sketcher.Constraint("Vertical", 26))
sketch7.addConstraint(Sketcher.Constraint("Horizontal", 27))
sketch7.addConstraint(Sketcher.Constraint("Vertical", 28))
sketch7.addConstraint(Sketcher.Constraint("Horizontal", 29))
sketch7.addConstraint(Sketcher.Constraint("Vertical", 30))
sketch7.addConstraint(Sketcher.Constraint("Horizontal", 31))
sketch7.addConstraint(Sketcher.Constraint("Vertical", 32))
sketch7.addConstraint(Sketcher.Constraint("Horizontal", 33))
sketch7.addConstraint(Sketcher.Constraint("Vertical", 34))
sketch7.addConstraint(Sketcher.Constraint("Horizontal", 35))
sketch7.addConstraint(Sketcher.Constraint("Vertical", 36))
sketch7.addConstraint(Sketcher.Constraint("Horizontal", 37))
sketch7.addConstraint(Sketcher.Constraint("Vertical", 38))
sketch7.addConstraint(Sketcher.Constraint("Horizontal", 39))
sketch7.addConstraint(Sketcher.Constraint("Horizontal", 40))
sketch7.addConstraint(Sketcher.Constraint("Vertical", 41))
sketch7.addConstraint(Sketcher.Constraint("Vertical", 43))
sketch7.addConstraint(Sketcher.Constraint("Horizontal", 44))
sketch7.addConstraint(Sketcher.Constraint("Vertical", 45))
sketch7.addConstraint(Sketcher.Constraint("Vertical", 47))
sketch7.addConstraint(Sketcher.Constraint("Vertical", 48))
sketch7.addConstraint(Sketcher.Constraint("Horizontal", 49))
sketch7.addConstraint(Sketcher.Constraint("Vertical", 50))
sketch7.addConstraint(Sketcher.Constraint("PointOnObject", 16, 2, -1))
sketch7.addConstraint(Sketcher.Constraint("PointOnObject", 20, 2, -1))
sketch7.addConstraint(Sketcher.Constraint("PointOnObject", 24, 2, -1))
sketch7.addConstraint(Sketcher.Constraint("PointOnObject", 28, 2, -1))
sketch7.addConstraint(Sketcher.Constraint("Parallel", 7, 8))
sketch7.addConstraint(Sketcher.Constraint("Parallel", 8, 42))
sketch7.addConstraint(Sketcher.Constraint("Parallel", 42, 46))
sketch7.addConstraint(Sketcher.Constraint("Parallel", 46, 51))
sketch7.addConstraint(Sketcher.Constraint("Horizontal", 19, 2, 26, 2))
sketch7.addConstraint(Sketcher.Constraint("Horizontal", 27, 2, 30, 2))
sketch7.addConstraint(Sketcher.Constraint("Horizontal", 13, 2, 32, 2))
sketch7.addConstraint(Sketcher.Constraint("Horizontal", 15, 2, 34, 2))
sketch7.addConstraint(Sketcher.Constraint("Horizontal", 33, 2, 36, 2))
sketch7.addConstraint(Sketcher.Constraint("Horizontal", 35, 2, 38, 2))
sketch7.addConstraint(Sketcher.Constraint("Horizontal", 10, 2, 40, 2))
sketch7.addConstraint(Sketcher.Constraint("Horizontal", 43, 2, 44, 2))
sketch7.addConstraint(Sketcher.Constraint("Vertical", 3, 2, 4, 2))
sketch7.addConstraint(Sketcher.Constraint("Vertical", 2, 2, 5, 2))
sketch7.addConstraint(Sketcher.Constraint("Vertical", 9, 2, 12, 2))
sketch7.addConstraint(Sketcher.Constraint("Vertical", 11, 2, 13, 2))
sketch7.addConstraint(Sketcher.Constraint("Vertical", 15, 2, 16, 2))
sketch7.addConstraint(Sketcher.Constraint("Vertical", 14, 2, 17, 2))
sketch7.addConstraint(Sketcher.Constraint("Vertical", 27, 2, 32, 2))
sketch7.addConstraint(Sketcher.Constraint("Vertical", 26, 2, 33, 2))
sketch7.addConstraint(Sketcher.Constraint("Vertical", 31, 2, 36, 2))
sketch7.addConstraint(Sketcher.Constraint("Vertical", 30, 2, 37, 2))
sketch7.addConstraint(Sketcher.Constraint("Vertical", 34, 2, 40, 2))
sketch7.addConstraint(Sketcher.Constraint("Vertical", 35, 2, 42, 2))
sketch7.addConstraint(Sketcher.Constraint("Vertical", 38, 2, 44, 2))
sketch7.addConstraint(Sketcher.Constraint("Vertical", 39, 2, 46, 2))
sketch7.addConstraint(Sketcher.Constraint("Vertical", 23, 2, 48, 2))
sketch7.addConstraint(Sketcher.Constraint("Equal", 19, 25))
sketch7.addConstraint(Sketcher.Constraint("Equal", 27, 29))
sketch7.addConstraint(Sketcher.Constraint("Equal", 14, 16))
sketch7.addConstraint(Sketcher.Constraint("DistanceX", 21, 1, 21, 2, Q("36 in")))
sketch7.addConstraint(Sketcher.Constraint("DistanceX", 49, 1, 49, 2, Q("18 in")))
sketch7.addConstraint(Sketcher.Constraint("DistanceY", 0, 2, 0, 1, Q("12 in")))
sketch7.addConstraint(Sketcher.Constraint("DistanceY", 12, 2, 12, 1, Q("16 in")))
sketch7.addConstraint(Sketcher.Constraint("DistanceY", 50, 1, 50, 2, Q("3 in")))
sketch7.addConstraint(Sketcher.Constraint("DistanceX", 1, 1, 1, 2, Q("10.5 in")))
sketch7.addConstraint(Sketcher.Constraint("DistanceY", 48, 2, 48, 1, Q("7.5 in")))
sketch7.addConstraint(Sketcher.Constraint("DistanceY", -1, 1, 0, 2, Q("10 in")))
sketch7.addConstraint(Sketcher.Constraint("DistanceX", 1, 2, -1, 1, Q("77 in")))
sketch7.addConstraint(Sketcher.Constraint("DistanceY", -1, 1, 9, 2, Q("35 in")))
sketch7.addConstraint(Sketcher.Constraint("DistanceX", 28, 2, -1, 1, Q("38 in")))
sketch7.addConstraint(Sketcher.Constraint("DistanceX", 0, 2, 20, 2, Q("12 in")))
sketch7.addConstraint(Sketcher.Constraint("DistanceX", 21, 2, 17, 2, Q("38 in")))
sketch7.addConstraint(Sketcher.Constraint("DistanceY", 23, 2, 7, 2, Q("12 in")))
sketch7.addConstraint(Sketcher.Constraint("DistanceY", 23, 2, 51, 2, Q("9 in")))
sketch7.addConstraint(Sketcher.Constraint("DistanceY", -1, 1, 4, 2, Q("23.5 in")))
sketch7.addConstraint(Sketcher.Constraint("DistanceY", -1, 1, 12, 2, Q("17.5 in")))
sketch7.addConstraint(Sketcher.Constraint("DistanceY", 11, 2, 22, 2, Q("9.5 in")))
sketch7.addConstraint(Sketcher.Constraint("DistanceX", 25, 2, 16, 2, Q("1.5 in")))
sketch7.addConstraint(Sketcher.Constraint("DistanceX", 29, 2, 24, 2, Q("1.5 in")))
sketch7.addConstraint(Sketcher.Constraint("DistanceY", 8, 2, 41, 2, Q("0.375 in")))
sketch7.addConstraint(Sketcher.Constraint("DistanceY", 42, 2, 45, 2, Q("0.375 in")))
sketch7.addConstraint(Sketcher.Constraint("DistanceY", 4, 2, 4, 1, 896.226899))
pocket4 = doc.addObject("PartDesign::Pocket", "Pocket003")
body3.addObject(pocket4)
pocket4.Profile = sketch7
pocket4.Type = "ThroughAll"

doc.recompute()
